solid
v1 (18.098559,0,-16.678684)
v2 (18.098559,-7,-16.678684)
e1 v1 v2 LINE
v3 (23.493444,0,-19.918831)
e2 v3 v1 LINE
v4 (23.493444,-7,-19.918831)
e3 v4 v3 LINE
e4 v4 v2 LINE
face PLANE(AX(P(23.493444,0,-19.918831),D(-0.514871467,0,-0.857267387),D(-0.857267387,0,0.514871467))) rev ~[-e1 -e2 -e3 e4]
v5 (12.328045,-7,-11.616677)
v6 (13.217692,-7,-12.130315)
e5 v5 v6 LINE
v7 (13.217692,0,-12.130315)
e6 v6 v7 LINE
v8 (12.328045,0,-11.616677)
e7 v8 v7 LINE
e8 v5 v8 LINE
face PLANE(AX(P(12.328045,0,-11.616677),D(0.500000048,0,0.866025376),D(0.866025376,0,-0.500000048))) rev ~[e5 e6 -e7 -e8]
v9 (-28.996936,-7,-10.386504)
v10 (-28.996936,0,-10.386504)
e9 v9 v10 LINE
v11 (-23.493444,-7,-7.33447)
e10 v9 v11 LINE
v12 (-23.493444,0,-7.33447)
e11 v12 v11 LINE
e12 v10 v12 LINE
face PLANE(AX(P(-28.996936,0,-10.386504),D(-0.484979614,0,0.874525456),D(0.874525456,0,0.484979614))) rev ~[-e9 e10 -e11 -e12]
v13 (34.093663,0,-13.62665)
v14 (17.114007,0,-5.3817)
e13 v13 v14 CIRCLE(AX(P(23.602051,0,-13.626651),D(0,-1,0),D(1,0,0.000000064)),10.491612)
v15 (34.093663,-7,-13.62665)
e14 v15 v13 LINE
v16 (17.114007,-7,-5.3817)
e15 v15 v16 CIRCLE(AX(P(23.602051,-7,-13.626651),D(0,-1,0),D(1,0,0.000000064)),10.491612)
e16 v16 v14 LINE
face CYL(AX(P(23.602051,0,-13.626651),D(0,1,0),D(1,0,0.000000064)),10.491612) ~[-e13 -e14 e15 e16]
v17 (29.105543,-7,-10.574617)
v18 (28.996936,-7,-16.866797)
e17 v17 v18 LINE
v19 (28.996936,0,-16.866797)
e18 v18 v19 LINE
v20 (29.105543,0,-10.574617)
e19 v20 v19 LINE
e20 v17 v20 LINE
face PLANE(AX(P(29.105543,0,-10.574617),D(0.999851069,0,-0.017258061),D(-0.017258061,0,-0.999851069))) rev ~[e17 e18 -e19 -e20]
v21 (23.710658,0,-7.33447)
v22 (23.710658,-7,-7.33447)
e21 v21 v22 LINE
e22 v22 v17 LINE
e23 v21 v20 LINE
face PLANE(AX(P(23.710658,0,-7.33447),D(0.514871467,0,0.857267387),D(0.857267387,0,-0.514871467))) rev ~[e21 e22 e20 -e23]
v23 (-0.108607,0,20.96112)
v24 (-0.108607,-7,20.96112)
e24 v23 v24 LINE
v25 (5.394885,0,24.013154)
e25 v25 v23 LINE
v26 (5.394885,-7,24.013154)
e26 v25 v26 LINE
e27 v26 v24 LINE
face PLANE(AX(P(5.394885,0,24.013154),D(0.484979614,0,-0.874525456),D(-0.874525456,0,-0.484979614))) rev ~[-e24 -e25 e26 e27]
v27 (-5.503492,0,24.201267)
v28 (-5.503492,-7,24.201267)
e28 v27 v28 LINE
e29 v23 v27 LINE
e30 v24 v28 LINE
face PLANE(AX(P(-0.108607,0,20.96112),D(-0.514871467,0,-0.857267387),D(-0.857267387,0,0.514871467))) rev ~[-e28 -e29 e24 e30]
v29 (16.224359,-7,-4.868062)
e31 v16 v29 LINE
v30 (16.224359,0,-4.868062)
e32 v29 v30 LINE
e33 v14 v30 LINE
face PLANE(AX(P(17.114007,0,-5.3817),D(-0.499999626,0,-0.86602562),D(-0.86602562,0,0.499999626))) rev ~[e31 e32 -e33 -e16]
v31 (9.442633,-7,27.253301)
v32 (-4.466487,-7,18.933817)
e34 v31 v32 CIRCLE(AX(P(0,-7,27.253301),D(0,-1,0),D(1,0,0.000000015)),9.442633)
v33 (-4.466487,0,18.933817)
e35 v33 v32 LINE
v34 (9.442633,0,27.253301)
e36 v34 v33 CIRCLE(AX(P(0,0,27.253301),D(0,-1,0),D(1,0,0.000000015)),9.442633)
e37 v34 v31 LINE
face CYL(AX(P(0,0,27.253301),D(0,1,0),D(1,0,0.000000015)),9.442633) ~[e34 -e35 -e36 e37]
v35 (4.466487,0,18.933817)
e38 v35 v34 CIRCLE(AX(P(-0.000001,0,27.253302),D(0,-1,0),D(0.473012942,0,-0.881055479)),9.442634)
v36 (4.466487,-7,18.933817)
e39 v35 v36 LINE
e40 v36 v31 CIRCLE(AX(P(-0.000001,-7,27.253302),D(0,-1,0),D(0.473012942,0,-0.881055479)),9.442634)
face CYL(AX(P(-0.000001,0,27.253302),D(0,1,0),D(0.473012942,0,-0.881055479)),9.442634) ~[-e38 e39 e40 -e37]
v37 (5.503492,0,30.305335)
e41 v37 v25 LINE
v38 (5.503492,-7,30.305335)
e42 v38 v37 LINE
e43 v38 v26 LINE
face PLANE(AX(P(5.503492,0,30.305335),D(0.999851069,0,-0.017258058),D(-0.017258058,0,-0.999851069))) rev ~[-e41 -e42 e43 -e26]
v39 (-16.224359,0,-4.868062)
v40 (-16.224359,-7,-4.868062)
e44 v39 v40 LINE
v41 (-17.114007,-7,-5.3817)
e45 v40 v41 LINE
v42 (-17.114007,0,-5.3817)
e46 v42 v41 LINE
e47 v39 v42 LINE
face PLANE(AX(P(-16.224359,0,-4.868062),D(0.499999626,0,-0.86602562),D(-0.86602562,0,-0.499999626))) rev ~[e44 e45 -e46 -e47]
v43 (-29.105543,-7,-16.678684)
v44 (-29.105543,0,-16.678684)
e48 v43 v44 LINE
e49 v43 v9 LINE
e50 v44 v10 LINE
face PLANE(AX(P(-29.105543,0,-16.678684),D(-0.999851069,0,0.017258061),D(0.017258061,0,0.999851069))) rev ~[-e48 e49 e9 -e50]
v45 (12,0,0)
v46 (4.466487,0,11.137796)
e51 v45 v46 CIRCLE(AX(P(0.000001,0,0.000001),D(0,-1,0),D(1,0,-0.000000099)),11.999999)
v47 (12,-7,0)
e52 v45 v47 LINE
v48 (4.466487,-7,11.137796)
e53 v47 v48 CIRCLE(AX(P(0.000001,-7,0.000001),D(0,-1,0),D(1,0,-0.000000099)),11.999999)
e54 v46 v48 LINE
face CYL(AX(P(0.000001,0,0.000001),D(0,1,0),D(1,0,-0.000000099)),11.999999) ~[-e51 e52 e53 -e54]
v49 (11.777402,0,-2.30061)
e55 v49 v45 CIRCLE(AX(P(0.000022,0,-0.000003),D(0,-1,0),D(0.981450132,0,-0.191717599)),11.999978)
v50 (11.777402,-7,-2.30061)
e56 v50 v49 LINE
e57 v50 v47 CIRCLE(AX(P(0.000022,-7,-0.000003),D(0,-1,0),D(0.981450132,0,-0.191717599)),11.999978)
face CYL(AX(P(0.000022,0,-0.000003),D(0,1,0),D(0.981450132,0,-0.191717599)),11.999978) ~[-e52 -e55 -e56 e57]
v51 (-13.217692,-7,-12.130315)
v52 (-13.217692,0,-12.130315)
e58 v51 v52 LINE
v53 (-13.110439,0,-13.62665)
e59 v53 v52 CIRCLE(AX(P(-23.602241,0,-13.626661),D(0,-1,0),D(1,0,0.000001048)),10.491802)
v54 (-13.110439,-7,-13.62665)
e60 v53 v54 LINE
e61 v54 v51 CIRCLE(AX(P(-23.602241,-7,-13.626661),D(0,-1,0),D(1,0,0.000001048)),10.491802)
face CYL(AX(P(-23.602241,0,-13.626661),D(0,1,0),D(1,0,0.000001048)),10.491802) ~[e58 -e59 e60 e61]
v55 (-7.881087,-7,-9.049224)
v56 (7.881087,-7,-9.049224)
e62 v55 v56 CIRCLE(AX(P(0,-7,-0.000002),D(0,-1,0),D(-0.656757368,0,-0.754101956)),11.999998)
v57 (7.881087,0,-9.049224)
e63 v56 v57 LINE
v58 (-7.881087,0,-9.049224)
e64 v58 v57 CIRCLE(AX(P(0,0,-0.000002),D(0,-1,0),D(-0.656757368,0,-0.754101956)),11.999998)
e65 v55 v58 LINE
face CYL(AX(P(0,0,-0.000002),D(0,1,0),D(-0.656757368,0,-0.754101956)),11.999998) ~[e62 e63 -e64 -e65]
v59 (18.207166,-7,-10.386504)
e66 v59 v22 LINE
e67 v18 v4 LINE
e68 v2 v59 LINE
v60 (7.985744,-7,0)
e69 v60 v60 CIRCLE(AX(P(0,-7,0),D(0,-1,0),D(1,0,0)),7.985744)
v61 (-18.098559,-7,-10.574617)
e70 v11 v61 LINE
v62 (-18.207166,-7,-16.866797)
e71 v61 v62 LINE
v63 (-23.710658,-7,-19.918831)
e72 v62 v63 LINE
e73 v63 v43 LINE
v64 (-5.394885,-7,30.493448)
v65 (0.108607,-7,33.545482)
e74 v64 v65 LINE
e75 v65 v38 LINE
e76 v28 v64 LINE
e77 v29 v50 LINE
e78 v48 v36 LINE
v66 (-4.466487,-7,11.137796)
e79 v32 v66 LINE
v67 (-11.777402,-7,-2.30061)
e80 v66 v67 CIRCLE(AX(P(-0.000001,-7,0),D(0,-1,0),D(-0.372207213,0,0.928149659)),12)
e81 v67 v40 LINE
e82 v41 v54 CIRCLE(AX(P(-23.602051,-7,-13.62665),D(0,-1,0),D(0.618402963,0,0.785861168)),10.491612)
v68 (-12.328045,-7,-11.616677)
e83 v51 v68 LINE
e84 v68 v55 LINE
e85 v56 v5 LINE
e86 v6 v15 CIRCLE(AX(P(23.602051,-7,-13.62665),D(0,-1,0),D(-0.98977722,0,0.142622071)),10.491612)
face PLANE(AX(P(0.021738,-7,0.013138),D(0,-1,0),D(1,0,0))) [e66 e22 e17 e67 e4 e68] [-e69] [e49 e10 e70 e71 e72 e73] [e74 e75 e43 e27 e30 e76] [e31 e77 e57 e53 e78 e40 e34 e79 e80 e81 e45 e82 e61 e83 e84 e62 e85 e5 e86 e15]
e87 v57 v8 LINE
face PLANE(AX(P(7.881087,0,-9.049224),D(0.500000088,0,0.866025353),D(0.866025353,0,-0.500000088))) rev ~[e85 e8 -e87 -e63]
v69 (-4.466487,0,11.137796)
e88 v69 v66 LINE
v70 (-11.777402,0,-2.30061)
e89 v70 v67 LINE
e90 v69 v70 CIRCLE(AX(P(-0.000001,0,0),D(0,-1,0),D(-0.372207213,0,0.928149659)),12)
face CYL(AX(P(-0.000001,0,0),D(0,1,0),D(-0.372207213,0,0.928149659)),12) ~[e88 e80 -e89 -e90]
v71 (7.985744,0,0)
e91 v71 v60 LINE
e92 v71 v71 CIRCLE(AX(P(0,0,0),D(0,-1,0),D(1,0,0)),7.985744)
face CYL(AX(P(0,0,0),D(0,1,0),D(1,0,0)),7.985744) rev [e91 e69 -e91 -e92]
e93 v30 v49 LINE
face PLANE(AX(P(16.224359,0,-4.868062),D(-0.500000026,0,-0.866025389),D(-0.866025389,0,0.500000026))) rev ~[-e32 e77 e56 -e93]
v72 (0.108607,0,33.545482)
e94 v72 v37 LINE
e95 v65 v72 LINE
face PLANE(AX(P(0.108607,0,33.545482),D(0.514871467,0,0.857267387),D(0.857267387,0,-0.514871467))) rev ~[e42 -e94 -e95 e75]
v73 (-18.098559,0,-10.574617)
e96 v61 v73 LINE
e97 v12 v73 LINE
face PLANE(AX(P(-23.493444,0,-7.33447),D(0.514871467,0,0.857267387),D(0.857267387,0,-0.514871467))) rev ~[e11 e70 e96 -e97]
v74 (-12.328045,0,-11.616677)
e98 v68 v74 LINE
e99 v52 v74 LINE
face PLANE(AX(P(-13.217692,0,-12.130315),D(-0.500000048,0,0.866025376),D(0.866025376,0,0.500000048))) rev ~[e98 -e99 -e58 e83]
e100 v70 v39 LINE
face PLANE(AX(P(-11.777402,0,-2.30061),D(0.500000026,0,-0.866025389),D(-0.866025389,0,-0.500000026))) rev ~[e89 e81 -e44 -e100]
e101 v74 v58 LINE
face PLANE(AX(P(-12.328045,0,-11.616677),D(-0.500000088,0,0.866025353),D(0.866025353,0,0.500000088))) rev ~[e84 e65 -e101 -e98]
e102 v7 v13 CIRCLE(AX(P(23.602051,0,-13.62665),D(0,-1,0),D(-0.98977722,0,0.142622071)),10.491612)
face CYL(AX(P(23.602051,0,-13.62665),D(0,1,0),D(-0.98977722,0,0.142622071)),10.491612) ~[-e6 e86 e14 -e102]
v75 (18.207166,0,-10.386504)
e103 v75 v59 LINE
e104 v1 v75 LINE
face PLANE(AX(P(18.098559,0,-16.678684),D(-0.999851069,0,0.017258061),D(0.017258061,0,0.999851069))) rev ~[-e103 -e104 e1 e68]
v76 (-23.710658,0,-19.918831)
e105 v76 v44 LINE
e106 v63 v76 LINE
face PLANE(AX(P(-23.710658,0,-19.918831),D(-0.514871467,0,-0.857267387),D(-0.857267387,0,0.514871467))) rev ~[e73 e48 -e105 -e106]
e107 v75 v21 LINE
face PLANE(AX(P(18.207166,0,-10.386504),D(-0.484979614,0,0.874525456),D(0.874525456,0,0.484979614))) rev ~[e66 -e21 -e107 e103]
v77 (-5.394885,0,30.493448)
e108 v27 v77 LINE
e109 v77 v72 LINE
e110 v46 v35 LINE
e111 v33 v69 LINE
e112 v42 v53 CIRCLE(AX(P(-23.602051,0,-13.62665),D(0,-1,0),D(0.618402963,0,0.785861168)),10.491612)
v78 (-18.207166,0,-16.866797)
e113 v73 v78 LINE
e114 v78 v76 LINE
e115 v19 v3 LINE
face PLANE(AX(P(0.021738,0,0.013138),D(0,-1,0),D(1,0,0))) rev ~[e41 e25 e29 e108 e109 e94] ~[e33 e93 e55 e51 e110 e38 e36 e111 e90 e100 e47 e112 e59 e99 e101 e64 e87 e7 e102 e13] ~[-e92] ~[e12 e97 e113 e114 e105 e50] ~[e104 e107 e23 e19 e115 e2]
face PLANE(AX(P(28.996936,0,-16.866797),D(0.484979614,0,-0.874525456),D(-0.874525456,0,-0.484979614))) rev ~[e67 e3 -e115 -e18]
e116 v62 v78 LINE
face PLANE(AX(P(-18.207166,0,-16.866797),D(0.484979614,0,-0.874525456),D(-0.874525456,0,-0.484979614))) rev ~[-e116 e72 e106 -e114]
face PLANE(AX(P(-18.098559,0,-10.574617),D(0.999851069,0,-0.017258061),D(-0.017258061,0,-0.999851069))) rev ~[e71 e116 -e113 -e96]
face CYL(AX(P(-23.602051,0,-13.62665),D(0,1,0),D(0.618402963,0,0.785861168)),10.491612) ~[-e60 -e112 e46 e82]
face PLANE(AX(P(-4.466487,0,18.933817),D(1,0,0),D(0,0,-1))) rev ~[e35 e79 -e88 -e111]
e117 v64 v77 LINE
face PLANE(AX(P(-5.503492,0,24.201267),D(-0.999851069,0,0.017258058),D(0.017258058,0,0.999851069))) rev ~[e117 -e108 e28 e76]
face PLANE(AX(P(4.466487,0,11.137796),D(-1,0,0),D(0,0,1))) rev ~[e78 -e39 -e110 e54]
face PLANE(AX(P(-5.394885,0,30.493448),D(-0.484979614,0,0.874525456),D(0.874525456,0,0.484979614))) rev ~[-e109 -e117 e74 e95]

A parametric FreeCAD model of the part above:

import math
import FreeCAD as App
import Part
import Sketcher

V = App.Vector

doc = App.newDocument("Part")
body = doc.addObject("PartDesign::Body", "Body")

# Sketch on XZ plane
sketch1 = body.newObject("Sketcher::SketchObject", "Sketch")
sketch1.AttachmentSupport = (doc.getObject("XZ_Plane"), [""])
sketch1.MapMode = "FlatFace"
sketch1.addGeometry(Part.ArcOfCircle(Part.Circle(V(0.000022, -0.000003, 0), V(0, 0, 1), 11.999978), math.radians(-11.053038), math.radians(0.000015)), False)
sketch1.addGeometry(Part.ArcOfCircle(Part.Circle(V(0.000001, 0.000001, 0), V(0, 0, 1), 11.999999), math.radians(-0.000006), math.radians(68.148196)), False)
sketch1.addGeometry(Part.LineSegment(V(4.466487, 11.137796, 0), V(4.466487, 18.933817, 0)), False)
sketch1.addGeometry(Part.ArcOfCircle(Part.Circle(V(-0.000001, 27.253302, 0), V(0, 0, 1), 9.442634), math.radians(-61.769948), math.radians(-0.000003)), False)
sketch1.addGeometry(Part.ArcOfCircle(Part.Circle(V(0, 27.253301, 0), V(0, 0, 1), 9.442633), math.radians(0.000001), math.radians(241.769953)), False)
sketch1.addGeometry(Part.LineSegment(V(-4.466487, 18.933817, 0), V(-4.466487, 11.137796, 0)), False)
sketch1.addGeometry(Part.ArcOfCircle(Part.Circle(V(-0.000001, 0, 0), V(0, 0, 1), 12), math.radians(111.851806), math.radians(191.053035)), False)
sketch1.addGeometry(Part.LineSegment(V(-11.777402, -2.30061, 0), V(-16.224359, -4.868062, 0)), False)
sketch1.addGeometry(Part.LineSegment(V(-16.224359, -4.868062, 0), V(-17.114007, -5.3817, 0)), False)
sketch1.addGeometry(Part.ArcOfCircle(Part.Circle(V(-23.602051, -13.62665, 0), V(0, 0, 1), 10.491612), math.radians(51.800396), math.radians(360.000002)), False)
sketch1.addGeometry(Part.ArcOfCircle(Part.Circle(V(-23.602241, -13.626661, 0), V(0, 0, 1), 10.491802), math.radians(0.00006), math.radians(8.199511)), False)
sketch1.addGeometry(Part.LineSegment(V(-13.217692, -12.130315, 0), V(-12.328045, -11.616677, 0)), False)
sketch1.addGeometry(Part.LineSegment(V(-12.328045, -11.616677, 0), V(-7.881087, -9.049224, 0)), False)
sketch1.addGeometry(Part.ArcOfCircle(Part.Circle(V(0, -0.000002, 0), V(0, 0, 1), 11.999998), math.radians(-131.053038), math.radians(-48.946962)), False)
sketch1.addGeometry(Part.LineSegment(V(7.881087, -9.049224, 0), V(12.328045, -11.616677, 0)), False)
sketch1.addGeometry(Part.LineSegment(V(12.328045, -11.616677, 0), V(13.217692, -12.130315, 0)), False)
sketch1.addGeometry(Part.ArcOfCircle(Part.Circle(V(23.602051, -13.62665, 0), V(0, 0, 1), 10.491612), math.radians(171.800397), math.radians(360.000003)), False)
sketch1.addGeometry(Part.ArcOfCircle(Part.Circle(V(23.602051, -13.626651, 0), V(0, 0, 1), 10.491612), math.radians(0.000004), math.radians(128.199603)), False)
sketch1.addGeometry(Part.LineSegment(V(17.114007, -5.3817, 0), V(16.224359, -4.868062, 0)), False)
sketch1.addGeometry(Part.LineSegment(V(16.224359, -4.868062, 0), V(11.777402, -2.30061, 0)), False)
sketch1.addGeometry(Part.LineSegment(V(-28.996936, -10.386504, 0), V(-23.493444, -7.33447, 0)), False)
sketch1.addGeometry(Part.LineSegment(V(-23.493444, -7.33447, 0), V(-18.098559, -10.574617, 0)), False)
sketch1.addGeometry(Part.LineSegment(V(-18.098559, -10.574617, 0), V(-18.207166, -16.866797, 0)), False)
sketch1.addGeometry(Part.LineSegment(V(-18.207166, -16.866797, 0), V(-23.710658, -19.918831, 0)), False)
sketch1.addGeometry(Part.LineSegment(V(-23.710658, -19.918831, 0), V(-29.105543, -16.678684, 0)), False)
sketch1.addGeometry(Part.LineSegment(V(-29.105543, -16.678684, 0), V(-28.996936, -10.386504, 0)), False)
sketch1.addGeometry(Part.LineSegment(V(23.493444, -19.918831, 0), V(18.098559, -16.678684, 0)), False)
sketch1.addGeometry(Part.LineSegment(V(18.098559, -16.678684, 0), V(18.207166, -10.386504, 0)), False)
sketch1.addGeometry(Part.LineSegment(V(18.207166, -10.386504, 0), V(23.710658, -7.33447, 0)), False)
sketch1.addGeometry(Part.LineSegment(V(23.710658, -7.33447, 0), V(29.105543, -10.574617, 0)), False)
sketch1.addGeometry(Part.LineSegment(V(29.105543, -10.574617, 0), V(28.996936, -16.866797, 0)), False)
sketch1.addGeometry(Part.LineSegment(V(28.996936, -16.866797, 0), V(23.493444, -19.918831, 0)), False)
sketch1.addGeometry(Part.Circle(V(0, 0, 0), V(0, 0, 1), 7.985744), False)
sketch1.addGeometry(Part.LineSegment(V(5.503492, 30.305335, 0), V(5.394885, 24.013154, 0)), False)
sketch1.addGeometry(Part.LineSegment(V(5.394885, 24.013154, 0), V(-0.108607, 20.96112, 0)), False)
sketch1.addGeometry(Part.LineSegment(V(-0.108607, 20.96112, 0), V(-5.503492, 24.201267, 0)), False)
sketch1.addGeometry(Part.LineSegment(V(-5.503492, 24.201267, 0), V(-5.394885, 30.493448, 0)), False)
sketch1.addGeometry(Part.LineSegment(V(-5.394885, 30.493448, 0), V(0.108607, 33.545482, 0)), False)
sketch1.addGeometry(Part.LineSegment(V(0.108607, 33.545482, 0), V(5.503492, 30.305335, 0)), False)
sketch1.addConstraint(Sketcher.Constraint("Coincident", 0, 2, 1, 1))
sketch1.addConstraint(Sketcher.Constraint("Coincident", 1, 2, 2, 1))
sketch1.addConstraint(Sketcher.Constraint("Coincident", 2, 2, 3, 1))
sketch1.addConstraint(Sketcher.Constraint("Coincident", 3, 2, 4, 1))
sketch1.addConstraint(Sketcher.Constraint("Coincident", 4, 2, 5, 1))
sketch1.addConstraint(Sketcher.Constraint("Coincident", 5, 2, 6, 1))
sketch1.addConstraint(Sketcher.Constraint("Coincident", 6, 2, 7, 1))
sketch1.addConstraint(Sketcher.Constraint("Coincident", 7, 2, 8, 1))
sketch1.addConstraint(Sketcher.Constraint("Coincident", 8, 2, 9, 1))
sketch1.addConstraint(Sketcher.Constraint("Coincident", 9, 2, 10, 1))
sketch1.addConstraint(Sketcher.Constraint("Coincident", 10, 2, 11, 1))
sketch1.addConstraint(Sketcher.Constraint("Coincident", 11, 2, 12, 1))
sketch1.addConstraint(Sketcher.Constraint("Coincident", 12, 2, 13, 1))
sketch1.addConstraint(Sketcher.Constraint("Coincident", 13, 2, 14, 1))
sketch1.addConstraint(Sketcher.Constraint("Coincident", 14, 2, 15, 1))
sketch1.addConstraint(Sketcher.Constraint("Coincident", 15, 2, 16, 1))
sketch1.addConstraint(Sketcher.Constraint("Coincident", 16, 2, 17, 1))
sketch1.addConstraint(Sketcher.Constraint("Coincident", 17, 2, 18, 1))
sketch1.addConstraint(Sketcher.Constraint("Coincident", 18, 2, 19, 1))
sketch1.addConstraint(Sketcher.Constraint("Coincident", 19, 2, 0, 1))
sketch1.addConstraint(Sketcher.Constraint("Coincident", 20, 2, 21, 1))
sketch1.addConstraint(Sketcher.Constraint("Coincident", 21, 2, 22, 1))
sketch1.addConstraint(Sketcher.Constraint("Coincident", 22, 2, 23, 1))
sketch1.addConstraint(Sketcher.Constraint("Coincident", 23, 2, 24, 1))
sketch1.addConstraint(Sketcher.Constraint("Coincident", 24, 2, 25, 1))
sketch1.addConstraint(Sketcher.Constraint("Coincident", 25, 2, 20, 1))
sketch1.addConstraint(Sketcher.Constraint("Coincident", 26, 2, 27, 1))
sketch1.addConstraint(Sketcher.Constraint("Coincident", 27, 2, 28, 1))
sketch1.addConstraint(Sketcher.Constraint("Coincident", 28, 2, 29, 1))
sketch1.addConstraint(Sketcher.Constraint("Coincident", 29, 2, 30, 1))
sketch1.addConstraint(Sketcher.Constraint("Coincident", 30, 2, 31, 1))
sketch1.addConstraint(Sketcher.Constraint("Coincident", 31, 2, 26, 1))
sketch1.addConstraint(Sketcher.Constraint("Coincident", 33, 2, 34, 1))
sketch1.addConstraint(Sketcher.Constraint("Coincident", 34, 2, 35, 1))
sketch1.addConstraint(Sketcher.Constraint("Coincident", 35, 2, 36, 1))
sketch1.addConstraint(Sketcher.Constraint("Coincident", 36, 2, 37, 1))
sketch1.addConstraint(Sketcher.Constraint("Coincident", 37, 2, 38, 1))
sketch1.addConstraint(Sketcher.Constraint("Coincident", 38, 2, 33, 1))
sketch1.addConstraint(Sketcher.Constraint("Vertical", 2))
sketch1.addConstraint(Sketcher.Constraint("Vertical", 5))
sketch1.addConstraint(Sketcher.Constraint("Coincident", 1, 3, -1, 1))
sketch1.addConstraint(Sketcher.Constraint("Coincident", 6, 3, -1, 1))
sketch1.addConstraint(Sketcher.Constraint("Coincident", 13, 3, -1, 1))
sketch1.addConstraint(Sketcher.Constraint("Coincident", 32, 3, -1, 1))
sketch1.addConstraint(Sketcher.Constraint("Coincident", 4, 3, 3, 3))
sketch1.addConstraint(Sketcher.Constraint("Coincident", 17, 3, 16, 3))
sketch1.addConstraint(Sketcher.Constraint("PointOnObject", 3, 3, -2))
sketch1.addConstraint(Sketcher.Constraint("PointOnObject", 0, 2, -1))
sketch1.addConstraint(Sketcher.Constraint("Radius", 1, 11.999999))
sketch1.addConstraint(Sketcher.Constraint("Radius", 6, 12.0))
sketch1.addConstraint(Sketcher.Constraint("Diameter", 32, 15.971488))
sketch1.addConstraint(Sketcher.Constraint("Radius", 9, 10.491612))
sketch1.addConstraint(Sketcher.Constraint("Radius", 0, 11.999978))
sketch1.addConstraint(Sketcher.Constraint("Radius", 3, 9.442634))
sketch1.addConstraint(Sketcher.Constraint("Radius", 10, 10.491802))
sketch1.addConstraint(Sketcher.Constraint("Radius", 13, 11.999998))
sketch1.addConstraint(Sketcher.Constraint("Radius", 16, 10.491612))
sketch1.addConstraint(Sketcher.Constraint("DistanceY", 2, 1, 2, 2, 7.796021))
sketch1.addConstraint(Sketcher.Constraint("DistanceY", 5, 2, 5, 1, 7.796021))
sketch1.addConstraint(Sketcher.Constraint("DistanceY", -1, 1, 3, 3, 27.253302))
sketch1.addConstraint(Sketcher.Constraint("DistanceY", -1, 1, 3, 2, 27.253301))
sketch1.addConstraint(Sketcher.Constraint("DistanceX", 6, 2, -1, 1, 11.777402))
sketch1.addConstraint(Sketcher.Constraint("DistanceY", 8, 2, -1, 1, 5.3817))
sketch1.addConstraint(Sketcher.Constraint("DistanceY", 17, 2, -1, 1, 5.3817))
sketch1.addConstraint(Sketcher.Constraint("DistanceX", 9, 3, 16, 3, 47.204102))
sketch1.addConstraint(Sketcher.Constraint("DistanceY", 0, 3, 1, 2, 11.137799))
sketch1.addConstraint(Sketcher.Constraint("DistanceY", 10, 3, 7, 2, 8.758599))
sketch1.addConstraint(Sketcher.Constraint("DistanceX", 21, 2, 7, 2, 1.8742))
sketch1.addConstraint(Sketcher.Constraint("DistanceX", 23, 2, 21, 2, 5.612099))
sketch1.addConstraint(Sketcher.Constraint("DistanceX", 24, 2, 10, 3, 5.503302))
sketch1.addConstraint(Sketcher.Constraint("DistanceX", 24, 2, 20, 2, 5.612099))
sketch1.addConstraint(Sketcher.Constraint("DistanceX", 18, 2, 28, 2, 7.486299))
sketch1.addConstraint(Sketcher.Constraint("DistanceX", 31, 2, 29, 2, 5.612099))
sketch1.addConstraint(Sketcher.Constraint("DistanceX", 2, 2, 33, 2, 0.928398))
sketch1.addConstraint(Sketcher.Constraint("DistanceX", 36, 2, 4, 2, 0.928398))
sketch1.addConstraint(Sketcher.Constraint("DistanceX", 35, 2, 37, 2, 5.612099))
sketch1.addConstraint(Sketcher.Constraint("Distance", 20, 6.293118))
sketch1.addConstraint(Sketcher.Constraint("Distance", 21, 6.293118))
sketch1.addConstraint(Sketcher.Constraint("Distance", 23, 6.293118))
sketch1.addConstraint(Sketcher.Constraint("Distance", 24, 6.293118))
sketch1.addConstraint(Sketcher.Constraint("Distance", 26, 6.293118))
sketch1.addConstraint(Sketcher.Constraint("Distance", 28, 6.293118))
sketch1.addConstraint(Sketcher.Constraint("Distance", 29, 6.293118))
sketch1.addConstraint(Sketcher.Constraint("Distance", 31, 6.293118))
sketch1.addConstraint(Sketcher.Constraint("Distance", 33, 6.293118))
sketch1.addConstraint(Sketcher.Constraint("Distance", 34, 6.293118))
sketch1.addConstraint(Sketcher.Constraint("Distance", 35, 6.293118))
sketch1.addConstraint(Sketcher.Constraint("Distance", 36, 6.293118))
sketch1.addConstraint(Sketcher.Constraint("Distance", 37, 6.293118))
sketch1.addConstraint(Sketcher.Constraint("Distance", 38, 6.293118))
sketch1.addConstraint(Sketcher.Constraint("DistanceX", 9, 3, -1, 1, 23.602051))
sketch1.addConstraint(Sketcher.Constraint("DistanceY", 9, 3, -1, 1, 13.62665))
sketch1.addConstraint(Sketcher.Constraint("DistanceY", 10, 3, -1, 1, 13.626661))
sketch1.addConstraint(Sketcher.Constraint("DistanceY", 16, 3, -1, 1, 13.62665))
sketch1.addConstraint(Sketcher.Constraint("DistanceX", 7, 2, -1, 1, 16.224359))
sketch1.addConstraint(Sketcher.Constraint("DistanceY", 9, 2, -1, 1, 13.62665))
sketch1.addConstraint(Sketcher.Constraint("DistanceX", 10, 2, -1, 1, 13.217692))
sketch1.addConstraint(Sketcher.Constraint("DistanceY", 16, 2, -1, 1, 13.62665))
sketch1.addConstraint(Sketcher.Constraint("DistanceX", -1, 1, 18, 2, 16.224359))
sketch1.addConstraint(Sketcher.Constraint("DistanceY", 19, 2, -1, 1, 2.30061))
sketch1.addConstraint(Sketcher.Constraint("DistanceY", 20, 2, -1, 1, 7.33447))
sketch1.addConstraint(Sketcher.Constraint("DistanceY", 23, 2, -1, 1, 19.918831))
sketch1.addConstraint(Sketcher.Constraint("DistanceX", -1, 1, 26, 2, 18.098559))
sketch1.addConstraint(Sketcher.Constraint("DistanceY", 28, 2, -1, 1, 7.33447))
sketch1.addConstraint(Sketcher.Constraint("DistanceY", 31, 2, -1, 1, 19.918831))
sketch1.addConstraint(Sketcher.Constraint("DistanceY", -1, 1, 34, 2, 20.96112))
sketch1.addConstraint(Sketcher.Constraint("DistanceX", 35, 2, -1, 1, 5.503492))
sketch1.addConstraint(Sketcher.Constraint("DistanceY", -1, 1, 36, 2, 30.493448))
sketch1.addConstraint(Sketcher.Constraint("DistanceY", 10, 2, 12, 2, 3.081091))
sketch1.addConstraint(Sketcher.Constraint("DistanceY", 13, 2, 0, 3, 9.049221))
sketch1.addConstraint(Sketcher.Constraint("DistanceY", 15, 2, 14, 2, 0.513638))
sketch1.addConstraint(Sketcher.Constraint("DistanceY", 15, 2, 13, 2, 3.081091))
sketch1.addConstraint(Sketcher.Constraint("DistanceX", 14, 2, 17, 2, 4.785962))
sketch1.addConstraint(Sketcher.Constraint("DistanceY", 11, 2, 21, 2, 1.04206))
sketch1.addConstraint(Sketcher.Constraint("DistanceY", 22, 2, 21, 2, 6.29218))
sketch1.addConstraint(Sketcher.Constraint("DistanceY", 24, 2, 25, 2, 6.29218))
sketch1.addConstraint(Sketcher.Constraint("DistanceY", 26, 2, 15, 2, 4.548369))
sketch1.addConstraint(Sketcher.Constraint("DistanceX", 17, 2, 27, 2, 1.093159))
sketch1.addConstraint(Sketcher.Constraint("DistanceY", 30, 2, 29, 2, 6.29218))
sketch1.addConstraint(Sketcher.Constraint("Distance", 11, 1.027276))
sketch1.addConstraint(Sketcher.Constraint("Distance", 18, 1.027277))
pad1 = body.newObject("PartDesign::Pad", "Pad")
pad1.Profile = sketch1
pad1.Length = 7

# Sketch on XZ plane
sketch2 = body.newObject("Sketcher::SketchObject", "Sketch001")
sketch2.AttachmentSupport = (doc.getObject("XZ_Plane"), [""])
sketch2.MapMode = "FlatFace"
sketch2.addGeometry(Part.ArcOfCircle(Part.Circle(V(0.000022, -0.000003, 0), V(0, 0, 1), 11.999978), math.radians(-11.053038), math.radians(0.000015)), False)
sketch2.addGeometry(Part.ArcOfCircle(Part.Circle(V(0.000001, 0.000001, 0), V(0, 0, 1), 11.999999), math.radians(-0.000006), math.radians(68.148196)), False)
sketch2.addGeometry(Part.LineSegment(V(4.466487, 11.137796, 0), V(4.466487, 18.933817, 0)), False)
sketch2.addGeometry(Part.ArcOfCircle(Part.Circle(V(-0.000001, 27.253302, 0), V(0, 0, 1), 9.442634), math.radians(-61.769948), math.radians(-0.000003)), False)
sketch2.addGeometry(Part.ArcOfCircle(Part.Circle(V(0, 27.253301, 0), V(0, 0, 1), 9.442633), math.radians(0.000001), math.radians(241.769953)), False)
sketch2.addGeometry(Part.LineSegment(V(-4.466487, 18.933817, 0), V(-4.466487, 11.137796, 0)), False)
sketch2.addGeometry(Part.ArcOfCircle(Part.Circle(V(-0.000001, 0, 0), V(0, 0, 1), 12), math.radians(111.851806), math.radians(191.053035)), False)
sketch2.addGeometry(Part.LineSegment(V(-11.777402, -2.30061, 0), V(-16.224359, -4.868062, 0)), False)
sketch2.addGeometry(Part.LineSegment(V(-16.224359, -4.868062, 0), V(-17.114007, -5.3817, 0)), False)
sketch2.addGeometry(Part.ArcOfCircle(Part.Circle(V(-23.602051, -13.62665, 0), V(0, 0, 1), 10.491612), math.radians(51.800396), math.radians(360.000002)), False)
sketch2.addGeometry(Part.ArcOfCircle(Part.Circle(V(-23.602241, -13.626661, 0), V(0, 0, 1), 10.491802), math.radians(0.00006), math.radians(8.199511)), False)
sketch2.addGeometry(Part.LineSegment(V(-13.217692, -12.130315, 0), V(-12.328045, -11.616677, 0)), False)
sketch2.addGeometry(Part.LineSegment(V(-12.328045, -11.616677, 0), V(-7.881087, -9.049224, 0)), False)
sketch2.addGeometry(Part.ArcOfCircle(Part.Circle(V(0, -0.000002, 0), V(0, 0, 1), 11.999998), math.radians(-131.053038), math.radians(-48.946962)), False)
sketch2.addGeometry(Part.LineSegment(V(7.881087, -9.049224, 0), V(12.328045, -11.616677, 0)), False)
sketch2.addGeometry(Part.LineSegment(V(12.328045, -11.616677, 0), V(13.217692, -12.130315, 0)), False)
sketch2.addGeometry(Part.ArcOfCircle(Part.Circle(V(23.602051, -13.62665, 0), V(0, 0, 1), 10.491612), math.radians(171.800397), math.radians(360.000003)), False)
sketch2.addGeometry(Part.ArcOfCircle(Part.Circle(V(23.602051, -13.626651, 0), V(0, 0, 1), 10.491612), math.radians(0.000004), math.radians(128.199603)), False)
sketch2.addGeometry(Part.LineSegment(V(17.114007, -5.3817, 0), V(16.224359, -4.868062, 0)), False)
sketch2.addGeometry(Part.LineSegment(V(16.224359, -4.868062, 0), V(11.777402, -2.30061, 0)), False)
sketch2.addGeometry(Part.LineSegment(V(-28.996936, -10.386504, 0), V(-23.493444, -7.33447, 0)), False)
sketch2.addGeometry(Part.LineSegment(V(-23.493444, -7.33447, 0), V(-18.098559, -10.574617, 0)), False)
sketch2.addGeometry(Part.LineSegment(V(-18.098559, -10.574617, 0), V(-18.207166, -16.866797, 0)), False)
sketch2.addGeometry(Part.LineSegment(V(-18.207166, -16.866797, 0), V(-23.710658, -19.918831, 0)), False)
sketch2.addGeometry(Part.LineSegment(V(-23.710658, -19.918831, 0), V(-29.105543, -16.678684, 0)), False)
sketch2.addGeometry(Part.LineSegment(V(-29.105543, -16.678684, 0), V(-28.996936, -10.386504, 0)), False)
sketch2.addGeometry(Part.LineSegment(V(23.493444, -19.918831, 0), V(18.098559, -16.678684, 0)), False)
sketch2.addGeometry(Part.LineSegment(V(18.098559, -16.678684, 0), V(18.207166, -10.386504, 0)), False)
sketch2.addGeometry(Part.LineSegment(V(18.207166, -10.386504, 0), V(23.710658, -7.33447, 0)), False)
sketch2.addGeometry(Part.LineSegment(V(23.710658, -7.33447, 0), V(29.105543, -10.574617, 0)), False)
sketch2.addGeometry(Part.LineSegment(V(29.105543, -10.574617, 0), V(28.996936, -16.866797, 0)), False)
sketch2.addGeometry(Part.LineSegment(V(28.996936, -16.866797, 0), V(23.493444, -19.918831, 0)), False)
sketch2.addGeometry(Part.Circle(V(0, 0, 0), V(0, 0, 1), 7.985744), False)
sketch2.addGeometry(Part.LineSegment(V(5.503492, 30.305335, 0), V(5.394885, 24.013154, 0)), False)
sketch2.addGeometry(Part.LineSegment(V(5.394885, 24.013154, 0), V(-0.108607, 20.96112, 0)), False)
sketch2.addGeometry(Part.LineSegment(V(-0.108607, 20.96112, 0), V(-5.503492, 24.201267, 0)), False)
sketch2.addGeometry(Part.LineSegment(V(-5.503492, 24.201267, 0), V(-5.394885, 30.493448, 0)), False)
sketch2.addGeometry(Part.LineSegment(V(-5.394885, 30.493448, 0), V(0.108607, 33.545482, 0)), False)
sketch2.addGeometry(Part.LineSegment(V(0.108607, 33.545482, 0), V(5.503492, 30.305335, 0)), False)
sketch2.addConstraint(Sketcher.Constraint("Coincident", 0, 2, 1, 1))
sketch2.addConstraint(Sketcher.Constraint("Coincident", 1, 2, 2, 1))
sketch2.addConstraint(Sketcher.Constraint("Coincident", 2, 2, 3, 1))
sketch2.addConstraint(Sketcher.Constraint("Coincident", 3, 2, 4, 1))
sketch2.addConstraint(Sketcher.Constraint("Coincident", 4, 2, 5, 1))
sketch2.addConstraint(Sketcher.Constraint("Coincident", 5, 2, 6, 1))
sketch2.addConstraint(Sketcher.Constraint("Coincident", 6, 2, 7, 1))
sketch2.addConstraint(Sketcher.Constraint("Coincident", 7, 2, 8, 1))
sketch2.addConstraint(Sketcher.Constraint("Coincident", 8, 2, 9, 1))
sketch2.addConstraint(Sketcher.Constraint("Coincident", 9, 2, 10, 1))
sketch2.addConstraint(Sketcher.Constraint("Coincident", 10, 2, 11, 1))
sketch2.addConstraint(Sketcher.Constraint("Coincident", 11, 2, 12, 1))
sketch2.addConstraint(Sketcher.Constraint("Coincident", 12, 2, 13, 1))
sketch2.addConstraint(Sketcher.Constraint("Coincident", 13, 2, 14, 1))
sketch2.addConstraint(Sketcher.Constraint("Coincident", 14, 2, 15, 1))
sketch2.addConstraint(Sketcher.Constraint("Coincident", 15, 2, 16, 1))
sketch2.addConstraint(Sketcher.Constraint("Coincident", 16, 2, 17, 1))
sketch2.addConstraint(Sketcher.Constraint("Coincident", 17, 2, 18, 1))
sketch2.addConstraint(Sketcher.Constraint("Coincident", 18, 2, 19, 1))
sketch2.addConstraint(Sketcher.Constraint("Coincident", 19, 2, 0, 1))
sketch2.addConstraint(Sketcher.Constraint("Coincident", 20, 2, 21, 1))
sketch2.addConstraint(Sketcher.Constraint("Coincident", 21, 2, 22, 1))
sketch2.addConstraint(Sketcher.Constraint("Coincident", 22, 2, 23, 1))
sketch2.addConstraint(Sketcher.Constraint("Coincident", 23, 2, 24, 1))
sketch2.addConstraint(Sketcher.Constraint("Coincident", 24, 2, 25, 1))
sketch2.addConstraint(Sketcher.Constraint("Coincident", 25, 2, 20, 1))
sketch2.addConstraint(Sketcher.Constraint("Coincident", 26, 2, 27, 1))
sketch2.addConstraint(Sketcher.Constraint("Coincident", 27, 2, 28, 1))
sketch2.addConstraint(Sketcher.Constraint("Coincident", 28, 2, 29, 1))
sketch2.addConstraint(Sketcher.Constraint("Coincident", 29, 2, 30, 1))
sketch2.addConstraint(Sketcher.Constraint("Coincident", 30, 2, 31, 1))
sketch2.addConstraint(Sketcher.Constraint("Coincident", 31, 2, 26, 1))
sketch2.addConstraint(Sketcher.Constraint("Coincident", 33, 2, 34, 1))
sketch2.addConstraint(Sketcher.Constraint("Coincident", 34, 2, 35, 1))
sketch2.addConstraint(Sketcher.Constraint("Coincident", 35, 2, 36, 1))
sketch2.addConstraint(Sketcher.Constraint("Coincident", 36, 2, 37, 1))
sketch2.addConstraint(Sketcher.Constraint("Coincident", 37, 2, 38, 1))
sketch2.addConstraint(Sketcher.Constraint("Coincident", 38, 2, 33, 1))
sketch2.addConstraint(Sketcher.Constraint("Vertical", 2))
sketch2.addConstraint(Sketcher.Constraint("Vertical", 5))
sketch2.addConstraint(Sketcher.Constraint("Coincident", 1, 3, -1, 1))
sketch2.addConstraint(Sketcher.Constraint("Coincident", 6, 3, -1, 1))
sketch2.addConstraint(Sketcher.Constraint("Coincident", 13, 3, -1, 1))
sketch2.addConstraint(Sketcher.Constraint("Coincident", 32, 3, -1, 1))
sketch2.addConstraint(Sketcher.Constraint("Coincident", 4, 3, 3, 3))
sketch2.addConstraint(Sketcher.Constraint("Coincident", 17, 3, 16, 3))
sketch2.addConstraint(Sketcher.Constraint("PointOnObject", 3, 3, -2))
sketch2.addConstraint(Sketcher.Constraint("PointOnObject", 0, 2, -1))
sketch2.addConstraint(Sketcher.Constraint("Radius", 1, 11.999999))
sketch2.addConstraint(Sketcher.Constraint("Radius", 6, 12.0))
sketch2.addConstraint(Sketcher.Constraint("Diameter", 32, 15.971488))
sketch2.addConstraint(Sketcher.Constraint("Radius", 9, 10.491612))
sketch2.addConstraint(Sketcher.Constraint("Radius", 0, 11.999978))
sketch2.addConstraint(Sketcher.Constraint("Radius", 3, 9.442634))
sketch2.addConstraint(Sketcher.Constraint("Radius", 10, 10.491802))
sketch2.addConstraint(Sketcher.Constraint("Radius", 13, 11.999998))
sketch2.addConstraint(Sketcher.Constraint("Radius", 16, 10.491612))
sketch2.addConstraint(Sketcher.Constraint("DistanceY", 2, 1, 2, 2, 7.796021))
sketch2.addConstraint(Sketcher.Constraint("DistanceY", 5, 2, 5, 1, 7.796021))
sketch2.addConstraint(Sketcher.Constraint("DistanceY", -1, 1, 3, 3, 27.253302))
sketch2.addConstraint(Sketcher.Constraint("DistanceY", -1, 1, 3, 2, 27.253301))
sketch2.addConstraint(Sketcher.Constraint("DistanceX", 6, 2, -1, 1, 11.777402))
sketch2.addConstraint(Sketcher.Constraint("DistanceY", 8, 2, -1, 1, 5.3817))
sketch2.addConstraint(Sketcher.Constraint("DistanceY", 17, 2, -1, 1, 5.3817))
sketch2.addConstraint(Sketcher.Constraint("DistanceX", 9, 3, 16, 3, 47.204102))
sketch2.addConstraint(Sketcher.Constraint("DistanceY", 0, 3, 1, 2, 11.137799))
sketch2.addConstraint(Sketcher.Constraint("DistanceY", 10, 3, 7, 2, 8.758599))
sketch2.addConstraint(Sketcher.Constraint("DistanceX", 21, 2, 7, 2, 1.8742))
sketch2.addConstraint(Sketcher.Constraint("DistanceX", 23, 2, 21, 2, 5.612099))
sketch2.addConstraint(Sketcher.Constraint("DistanceX", 24, 2, 10, 3, 5.503302))
sketch2.addConstraint(Sketcher.Constraint("DistanceX", 24, 2, 20, 2, 5.612099))
sketch2.addConstraint(Sketcher.Constraint("DistanceX", 18, 2, 28, 2, 7.486299))
sketch2.addConstraint(Sketcher.Constraint("DistanceX", 31, 2, 29, 2, 5.612099))
sketch2.addConstraint(Sketcher.Constraint("DistanceX", 2, 2, 33, 2, 0.928398))
sketch2.addConstraint(Sketcher.Constraint("DistanceX", 36, 2, 4, 2, 0.928398))
sketch2.addConstraint(Sketcher.Constraint("DistanceX", 35, 2, 37, 2, 5.612099))
sketch2.addConstraint(Sketcher.Constraint("Distance", 20, 6.293118))
sketch2.addConstraint(Sketcher.Constraint("Distance", 21, 6.293118))
sketch2.addConstraint(Sketcher.Constraint("Distance", 23, 6.293118))
sketch2.addConstraint(Sketcher.Constraint("Distance", 24, 6.293118))
sketch2.addConstraint(Sketcher.Constraint("Distance", 26, 6.293118))
sketch2.addConstraint(Sketcher.Constraint("Distance", 28, 6.293118))
sketch2.addConstraint(Sketcher.Constraint("Distance", 29, 6.293118))
sketch2.addConstraint(Sketcher.Constraint("Distance", 31, 6.293118))
sketch2.addConstraint(Sketcher.Constraint("Distance", 33, 6.293118))
sketch2.addConstraint(Sketcher.Constraint("Distance", 34, 6.293118))
sketch2.addConstraint(Sketcher.Constraint("Distance", 35, 6.293118))
sketch2.addConstraint(Sketcher.Constraint("Distance", 36, 6.293118))
sketch2.addConstraint(Sketcher.Constraint("Distance", 37, 6.293118))
sketch2.addConstraint(Sketcher.Constraint("Distance", 38, 6.293118))
sketch2.addConstraint(Sketcher.Constraint("DistanceX", 9, 3, -1, 1, 23.602051))
sketch2.addConstraint(Sketcher.Constraint("DistanceY", 9, 3, -1, 1, 13.62665))
sketch2.addConstraint(Sketcher.Constraint("DistanceY", 10, 3, -1, 1, 13.626661))
sketch2.addConstraint(Sketcher.Constraint("DistanceY", 16, 3, -1, 1, 13.62665))
sketch2.addConstraint(Sketcher.Constraint("DistanceX", 7, 2, -1, 1, 16.224359))
sketch2.addConstraint(Sketcher.Constraint("DistanceY", 9, 2, -1, 1, 13.62665))
sketch2.addConstraint(Sketcher.Constraint("DistanceX", 10, 2, -1, 1, 13.217692))
sketch2.addConstraint(Sketcher.Constraint("DistanceY", 16, 2, -1, 1, 13.62665))
sketch2.addConstraint(Sketcher.Constraint("DistanceX", -1, 1, 18, 2, 16.224359))
sketch2.addConstraint(Sketcher.Constraint("DistanceY", 19, 2, -1, 1, 2.30061))
sketch2.addConstraint(Sketcher.Constraint("DistanceY", 20, 2, -1, 1, 7.33447))
sketch2.addConstraint(Sketcher.Constraint("DistanceY", 23, 2, -1, 1, 19.918831))
sketch2.addConstraint(Sketcher.Constraint("DistanceX", -1, 1, 26, 2, 18.098559))
sketch2.addConstraint(Sketcher.Constraint("DistanceY", 28, 2, -1, 1, 7.33447))
sketch2.addConstraint(Sketcher.Constraint("DistanceY", 31, 2, -1, 1, 19.918831))
sketch2.addConstraint(Sketcher.Constraint("DistanceY", -1, 1, 34, 2, 20.96112))
sketch2.addConstraint(Sketcher.Constraint("DistanceX", 35, 2, -1, 1, 5.503492))
sketch2.addConstraint(Sketcher.Constraint("DistanceY", -1, 1, 36, 2, 30.493448))
sketch2.addConstraint(Sketcher.Constraint("DistanceY", 10, 2, 12, 2, 3.081091))
sketch2.addConstraint(Sketcher.Constraint("DistanceY", 13, 2, 0, 3, 9.049221))
sketch2.addConstraint(Sketcher.Constraint("DistanceY", 15, 2, 14, 2, 0.513638))
sketch2.addConstraint(Sketcher.Constraint("DistanceY", 15, 2, 13, 2, 3.081091))
sketch2.addConstraint(Sketcher.Constraint("DistanceX", 14, 2, 17, 2, 4.785962))
sketch2.addConstraint(Sketcher.Constraint("DistanceY", 11, 2, 21, 2, 1.04206))
sketch2.addConstraint(Sketcher.Constraint("DistanceY", 22, 2, 21, 2, 6.29218))
sketch2.addConstraint(Sketcher.Constraint("DistanceY", 24, 2, 25, 2, 6.29218))
sketch2.addConstraint(Sketcher.Constraint("DistanceY", 26, 2, 15, 2, 4.548369))
sketch2.addConstraint(Sketcher.Constraint("DistanceX", 17, 2, 27, 2, 1.093159))
sketch2.addConstraint(Sketcher.Constraint("DistanceY", 30, 2, 29, 2, 6.29218))
sketch2.addConstraint(Sketcher.Constraint("Distance", 11, 1.027276))
sketch2.addConstraint(Sketcher.Constraint("Distance", 18, 1.027277))
pad2 = body.newObject("PartDesign::Pad", "Pad001")
pad2.Profile = sketch2
pad2.Length = 0.25

doc.recompute()
